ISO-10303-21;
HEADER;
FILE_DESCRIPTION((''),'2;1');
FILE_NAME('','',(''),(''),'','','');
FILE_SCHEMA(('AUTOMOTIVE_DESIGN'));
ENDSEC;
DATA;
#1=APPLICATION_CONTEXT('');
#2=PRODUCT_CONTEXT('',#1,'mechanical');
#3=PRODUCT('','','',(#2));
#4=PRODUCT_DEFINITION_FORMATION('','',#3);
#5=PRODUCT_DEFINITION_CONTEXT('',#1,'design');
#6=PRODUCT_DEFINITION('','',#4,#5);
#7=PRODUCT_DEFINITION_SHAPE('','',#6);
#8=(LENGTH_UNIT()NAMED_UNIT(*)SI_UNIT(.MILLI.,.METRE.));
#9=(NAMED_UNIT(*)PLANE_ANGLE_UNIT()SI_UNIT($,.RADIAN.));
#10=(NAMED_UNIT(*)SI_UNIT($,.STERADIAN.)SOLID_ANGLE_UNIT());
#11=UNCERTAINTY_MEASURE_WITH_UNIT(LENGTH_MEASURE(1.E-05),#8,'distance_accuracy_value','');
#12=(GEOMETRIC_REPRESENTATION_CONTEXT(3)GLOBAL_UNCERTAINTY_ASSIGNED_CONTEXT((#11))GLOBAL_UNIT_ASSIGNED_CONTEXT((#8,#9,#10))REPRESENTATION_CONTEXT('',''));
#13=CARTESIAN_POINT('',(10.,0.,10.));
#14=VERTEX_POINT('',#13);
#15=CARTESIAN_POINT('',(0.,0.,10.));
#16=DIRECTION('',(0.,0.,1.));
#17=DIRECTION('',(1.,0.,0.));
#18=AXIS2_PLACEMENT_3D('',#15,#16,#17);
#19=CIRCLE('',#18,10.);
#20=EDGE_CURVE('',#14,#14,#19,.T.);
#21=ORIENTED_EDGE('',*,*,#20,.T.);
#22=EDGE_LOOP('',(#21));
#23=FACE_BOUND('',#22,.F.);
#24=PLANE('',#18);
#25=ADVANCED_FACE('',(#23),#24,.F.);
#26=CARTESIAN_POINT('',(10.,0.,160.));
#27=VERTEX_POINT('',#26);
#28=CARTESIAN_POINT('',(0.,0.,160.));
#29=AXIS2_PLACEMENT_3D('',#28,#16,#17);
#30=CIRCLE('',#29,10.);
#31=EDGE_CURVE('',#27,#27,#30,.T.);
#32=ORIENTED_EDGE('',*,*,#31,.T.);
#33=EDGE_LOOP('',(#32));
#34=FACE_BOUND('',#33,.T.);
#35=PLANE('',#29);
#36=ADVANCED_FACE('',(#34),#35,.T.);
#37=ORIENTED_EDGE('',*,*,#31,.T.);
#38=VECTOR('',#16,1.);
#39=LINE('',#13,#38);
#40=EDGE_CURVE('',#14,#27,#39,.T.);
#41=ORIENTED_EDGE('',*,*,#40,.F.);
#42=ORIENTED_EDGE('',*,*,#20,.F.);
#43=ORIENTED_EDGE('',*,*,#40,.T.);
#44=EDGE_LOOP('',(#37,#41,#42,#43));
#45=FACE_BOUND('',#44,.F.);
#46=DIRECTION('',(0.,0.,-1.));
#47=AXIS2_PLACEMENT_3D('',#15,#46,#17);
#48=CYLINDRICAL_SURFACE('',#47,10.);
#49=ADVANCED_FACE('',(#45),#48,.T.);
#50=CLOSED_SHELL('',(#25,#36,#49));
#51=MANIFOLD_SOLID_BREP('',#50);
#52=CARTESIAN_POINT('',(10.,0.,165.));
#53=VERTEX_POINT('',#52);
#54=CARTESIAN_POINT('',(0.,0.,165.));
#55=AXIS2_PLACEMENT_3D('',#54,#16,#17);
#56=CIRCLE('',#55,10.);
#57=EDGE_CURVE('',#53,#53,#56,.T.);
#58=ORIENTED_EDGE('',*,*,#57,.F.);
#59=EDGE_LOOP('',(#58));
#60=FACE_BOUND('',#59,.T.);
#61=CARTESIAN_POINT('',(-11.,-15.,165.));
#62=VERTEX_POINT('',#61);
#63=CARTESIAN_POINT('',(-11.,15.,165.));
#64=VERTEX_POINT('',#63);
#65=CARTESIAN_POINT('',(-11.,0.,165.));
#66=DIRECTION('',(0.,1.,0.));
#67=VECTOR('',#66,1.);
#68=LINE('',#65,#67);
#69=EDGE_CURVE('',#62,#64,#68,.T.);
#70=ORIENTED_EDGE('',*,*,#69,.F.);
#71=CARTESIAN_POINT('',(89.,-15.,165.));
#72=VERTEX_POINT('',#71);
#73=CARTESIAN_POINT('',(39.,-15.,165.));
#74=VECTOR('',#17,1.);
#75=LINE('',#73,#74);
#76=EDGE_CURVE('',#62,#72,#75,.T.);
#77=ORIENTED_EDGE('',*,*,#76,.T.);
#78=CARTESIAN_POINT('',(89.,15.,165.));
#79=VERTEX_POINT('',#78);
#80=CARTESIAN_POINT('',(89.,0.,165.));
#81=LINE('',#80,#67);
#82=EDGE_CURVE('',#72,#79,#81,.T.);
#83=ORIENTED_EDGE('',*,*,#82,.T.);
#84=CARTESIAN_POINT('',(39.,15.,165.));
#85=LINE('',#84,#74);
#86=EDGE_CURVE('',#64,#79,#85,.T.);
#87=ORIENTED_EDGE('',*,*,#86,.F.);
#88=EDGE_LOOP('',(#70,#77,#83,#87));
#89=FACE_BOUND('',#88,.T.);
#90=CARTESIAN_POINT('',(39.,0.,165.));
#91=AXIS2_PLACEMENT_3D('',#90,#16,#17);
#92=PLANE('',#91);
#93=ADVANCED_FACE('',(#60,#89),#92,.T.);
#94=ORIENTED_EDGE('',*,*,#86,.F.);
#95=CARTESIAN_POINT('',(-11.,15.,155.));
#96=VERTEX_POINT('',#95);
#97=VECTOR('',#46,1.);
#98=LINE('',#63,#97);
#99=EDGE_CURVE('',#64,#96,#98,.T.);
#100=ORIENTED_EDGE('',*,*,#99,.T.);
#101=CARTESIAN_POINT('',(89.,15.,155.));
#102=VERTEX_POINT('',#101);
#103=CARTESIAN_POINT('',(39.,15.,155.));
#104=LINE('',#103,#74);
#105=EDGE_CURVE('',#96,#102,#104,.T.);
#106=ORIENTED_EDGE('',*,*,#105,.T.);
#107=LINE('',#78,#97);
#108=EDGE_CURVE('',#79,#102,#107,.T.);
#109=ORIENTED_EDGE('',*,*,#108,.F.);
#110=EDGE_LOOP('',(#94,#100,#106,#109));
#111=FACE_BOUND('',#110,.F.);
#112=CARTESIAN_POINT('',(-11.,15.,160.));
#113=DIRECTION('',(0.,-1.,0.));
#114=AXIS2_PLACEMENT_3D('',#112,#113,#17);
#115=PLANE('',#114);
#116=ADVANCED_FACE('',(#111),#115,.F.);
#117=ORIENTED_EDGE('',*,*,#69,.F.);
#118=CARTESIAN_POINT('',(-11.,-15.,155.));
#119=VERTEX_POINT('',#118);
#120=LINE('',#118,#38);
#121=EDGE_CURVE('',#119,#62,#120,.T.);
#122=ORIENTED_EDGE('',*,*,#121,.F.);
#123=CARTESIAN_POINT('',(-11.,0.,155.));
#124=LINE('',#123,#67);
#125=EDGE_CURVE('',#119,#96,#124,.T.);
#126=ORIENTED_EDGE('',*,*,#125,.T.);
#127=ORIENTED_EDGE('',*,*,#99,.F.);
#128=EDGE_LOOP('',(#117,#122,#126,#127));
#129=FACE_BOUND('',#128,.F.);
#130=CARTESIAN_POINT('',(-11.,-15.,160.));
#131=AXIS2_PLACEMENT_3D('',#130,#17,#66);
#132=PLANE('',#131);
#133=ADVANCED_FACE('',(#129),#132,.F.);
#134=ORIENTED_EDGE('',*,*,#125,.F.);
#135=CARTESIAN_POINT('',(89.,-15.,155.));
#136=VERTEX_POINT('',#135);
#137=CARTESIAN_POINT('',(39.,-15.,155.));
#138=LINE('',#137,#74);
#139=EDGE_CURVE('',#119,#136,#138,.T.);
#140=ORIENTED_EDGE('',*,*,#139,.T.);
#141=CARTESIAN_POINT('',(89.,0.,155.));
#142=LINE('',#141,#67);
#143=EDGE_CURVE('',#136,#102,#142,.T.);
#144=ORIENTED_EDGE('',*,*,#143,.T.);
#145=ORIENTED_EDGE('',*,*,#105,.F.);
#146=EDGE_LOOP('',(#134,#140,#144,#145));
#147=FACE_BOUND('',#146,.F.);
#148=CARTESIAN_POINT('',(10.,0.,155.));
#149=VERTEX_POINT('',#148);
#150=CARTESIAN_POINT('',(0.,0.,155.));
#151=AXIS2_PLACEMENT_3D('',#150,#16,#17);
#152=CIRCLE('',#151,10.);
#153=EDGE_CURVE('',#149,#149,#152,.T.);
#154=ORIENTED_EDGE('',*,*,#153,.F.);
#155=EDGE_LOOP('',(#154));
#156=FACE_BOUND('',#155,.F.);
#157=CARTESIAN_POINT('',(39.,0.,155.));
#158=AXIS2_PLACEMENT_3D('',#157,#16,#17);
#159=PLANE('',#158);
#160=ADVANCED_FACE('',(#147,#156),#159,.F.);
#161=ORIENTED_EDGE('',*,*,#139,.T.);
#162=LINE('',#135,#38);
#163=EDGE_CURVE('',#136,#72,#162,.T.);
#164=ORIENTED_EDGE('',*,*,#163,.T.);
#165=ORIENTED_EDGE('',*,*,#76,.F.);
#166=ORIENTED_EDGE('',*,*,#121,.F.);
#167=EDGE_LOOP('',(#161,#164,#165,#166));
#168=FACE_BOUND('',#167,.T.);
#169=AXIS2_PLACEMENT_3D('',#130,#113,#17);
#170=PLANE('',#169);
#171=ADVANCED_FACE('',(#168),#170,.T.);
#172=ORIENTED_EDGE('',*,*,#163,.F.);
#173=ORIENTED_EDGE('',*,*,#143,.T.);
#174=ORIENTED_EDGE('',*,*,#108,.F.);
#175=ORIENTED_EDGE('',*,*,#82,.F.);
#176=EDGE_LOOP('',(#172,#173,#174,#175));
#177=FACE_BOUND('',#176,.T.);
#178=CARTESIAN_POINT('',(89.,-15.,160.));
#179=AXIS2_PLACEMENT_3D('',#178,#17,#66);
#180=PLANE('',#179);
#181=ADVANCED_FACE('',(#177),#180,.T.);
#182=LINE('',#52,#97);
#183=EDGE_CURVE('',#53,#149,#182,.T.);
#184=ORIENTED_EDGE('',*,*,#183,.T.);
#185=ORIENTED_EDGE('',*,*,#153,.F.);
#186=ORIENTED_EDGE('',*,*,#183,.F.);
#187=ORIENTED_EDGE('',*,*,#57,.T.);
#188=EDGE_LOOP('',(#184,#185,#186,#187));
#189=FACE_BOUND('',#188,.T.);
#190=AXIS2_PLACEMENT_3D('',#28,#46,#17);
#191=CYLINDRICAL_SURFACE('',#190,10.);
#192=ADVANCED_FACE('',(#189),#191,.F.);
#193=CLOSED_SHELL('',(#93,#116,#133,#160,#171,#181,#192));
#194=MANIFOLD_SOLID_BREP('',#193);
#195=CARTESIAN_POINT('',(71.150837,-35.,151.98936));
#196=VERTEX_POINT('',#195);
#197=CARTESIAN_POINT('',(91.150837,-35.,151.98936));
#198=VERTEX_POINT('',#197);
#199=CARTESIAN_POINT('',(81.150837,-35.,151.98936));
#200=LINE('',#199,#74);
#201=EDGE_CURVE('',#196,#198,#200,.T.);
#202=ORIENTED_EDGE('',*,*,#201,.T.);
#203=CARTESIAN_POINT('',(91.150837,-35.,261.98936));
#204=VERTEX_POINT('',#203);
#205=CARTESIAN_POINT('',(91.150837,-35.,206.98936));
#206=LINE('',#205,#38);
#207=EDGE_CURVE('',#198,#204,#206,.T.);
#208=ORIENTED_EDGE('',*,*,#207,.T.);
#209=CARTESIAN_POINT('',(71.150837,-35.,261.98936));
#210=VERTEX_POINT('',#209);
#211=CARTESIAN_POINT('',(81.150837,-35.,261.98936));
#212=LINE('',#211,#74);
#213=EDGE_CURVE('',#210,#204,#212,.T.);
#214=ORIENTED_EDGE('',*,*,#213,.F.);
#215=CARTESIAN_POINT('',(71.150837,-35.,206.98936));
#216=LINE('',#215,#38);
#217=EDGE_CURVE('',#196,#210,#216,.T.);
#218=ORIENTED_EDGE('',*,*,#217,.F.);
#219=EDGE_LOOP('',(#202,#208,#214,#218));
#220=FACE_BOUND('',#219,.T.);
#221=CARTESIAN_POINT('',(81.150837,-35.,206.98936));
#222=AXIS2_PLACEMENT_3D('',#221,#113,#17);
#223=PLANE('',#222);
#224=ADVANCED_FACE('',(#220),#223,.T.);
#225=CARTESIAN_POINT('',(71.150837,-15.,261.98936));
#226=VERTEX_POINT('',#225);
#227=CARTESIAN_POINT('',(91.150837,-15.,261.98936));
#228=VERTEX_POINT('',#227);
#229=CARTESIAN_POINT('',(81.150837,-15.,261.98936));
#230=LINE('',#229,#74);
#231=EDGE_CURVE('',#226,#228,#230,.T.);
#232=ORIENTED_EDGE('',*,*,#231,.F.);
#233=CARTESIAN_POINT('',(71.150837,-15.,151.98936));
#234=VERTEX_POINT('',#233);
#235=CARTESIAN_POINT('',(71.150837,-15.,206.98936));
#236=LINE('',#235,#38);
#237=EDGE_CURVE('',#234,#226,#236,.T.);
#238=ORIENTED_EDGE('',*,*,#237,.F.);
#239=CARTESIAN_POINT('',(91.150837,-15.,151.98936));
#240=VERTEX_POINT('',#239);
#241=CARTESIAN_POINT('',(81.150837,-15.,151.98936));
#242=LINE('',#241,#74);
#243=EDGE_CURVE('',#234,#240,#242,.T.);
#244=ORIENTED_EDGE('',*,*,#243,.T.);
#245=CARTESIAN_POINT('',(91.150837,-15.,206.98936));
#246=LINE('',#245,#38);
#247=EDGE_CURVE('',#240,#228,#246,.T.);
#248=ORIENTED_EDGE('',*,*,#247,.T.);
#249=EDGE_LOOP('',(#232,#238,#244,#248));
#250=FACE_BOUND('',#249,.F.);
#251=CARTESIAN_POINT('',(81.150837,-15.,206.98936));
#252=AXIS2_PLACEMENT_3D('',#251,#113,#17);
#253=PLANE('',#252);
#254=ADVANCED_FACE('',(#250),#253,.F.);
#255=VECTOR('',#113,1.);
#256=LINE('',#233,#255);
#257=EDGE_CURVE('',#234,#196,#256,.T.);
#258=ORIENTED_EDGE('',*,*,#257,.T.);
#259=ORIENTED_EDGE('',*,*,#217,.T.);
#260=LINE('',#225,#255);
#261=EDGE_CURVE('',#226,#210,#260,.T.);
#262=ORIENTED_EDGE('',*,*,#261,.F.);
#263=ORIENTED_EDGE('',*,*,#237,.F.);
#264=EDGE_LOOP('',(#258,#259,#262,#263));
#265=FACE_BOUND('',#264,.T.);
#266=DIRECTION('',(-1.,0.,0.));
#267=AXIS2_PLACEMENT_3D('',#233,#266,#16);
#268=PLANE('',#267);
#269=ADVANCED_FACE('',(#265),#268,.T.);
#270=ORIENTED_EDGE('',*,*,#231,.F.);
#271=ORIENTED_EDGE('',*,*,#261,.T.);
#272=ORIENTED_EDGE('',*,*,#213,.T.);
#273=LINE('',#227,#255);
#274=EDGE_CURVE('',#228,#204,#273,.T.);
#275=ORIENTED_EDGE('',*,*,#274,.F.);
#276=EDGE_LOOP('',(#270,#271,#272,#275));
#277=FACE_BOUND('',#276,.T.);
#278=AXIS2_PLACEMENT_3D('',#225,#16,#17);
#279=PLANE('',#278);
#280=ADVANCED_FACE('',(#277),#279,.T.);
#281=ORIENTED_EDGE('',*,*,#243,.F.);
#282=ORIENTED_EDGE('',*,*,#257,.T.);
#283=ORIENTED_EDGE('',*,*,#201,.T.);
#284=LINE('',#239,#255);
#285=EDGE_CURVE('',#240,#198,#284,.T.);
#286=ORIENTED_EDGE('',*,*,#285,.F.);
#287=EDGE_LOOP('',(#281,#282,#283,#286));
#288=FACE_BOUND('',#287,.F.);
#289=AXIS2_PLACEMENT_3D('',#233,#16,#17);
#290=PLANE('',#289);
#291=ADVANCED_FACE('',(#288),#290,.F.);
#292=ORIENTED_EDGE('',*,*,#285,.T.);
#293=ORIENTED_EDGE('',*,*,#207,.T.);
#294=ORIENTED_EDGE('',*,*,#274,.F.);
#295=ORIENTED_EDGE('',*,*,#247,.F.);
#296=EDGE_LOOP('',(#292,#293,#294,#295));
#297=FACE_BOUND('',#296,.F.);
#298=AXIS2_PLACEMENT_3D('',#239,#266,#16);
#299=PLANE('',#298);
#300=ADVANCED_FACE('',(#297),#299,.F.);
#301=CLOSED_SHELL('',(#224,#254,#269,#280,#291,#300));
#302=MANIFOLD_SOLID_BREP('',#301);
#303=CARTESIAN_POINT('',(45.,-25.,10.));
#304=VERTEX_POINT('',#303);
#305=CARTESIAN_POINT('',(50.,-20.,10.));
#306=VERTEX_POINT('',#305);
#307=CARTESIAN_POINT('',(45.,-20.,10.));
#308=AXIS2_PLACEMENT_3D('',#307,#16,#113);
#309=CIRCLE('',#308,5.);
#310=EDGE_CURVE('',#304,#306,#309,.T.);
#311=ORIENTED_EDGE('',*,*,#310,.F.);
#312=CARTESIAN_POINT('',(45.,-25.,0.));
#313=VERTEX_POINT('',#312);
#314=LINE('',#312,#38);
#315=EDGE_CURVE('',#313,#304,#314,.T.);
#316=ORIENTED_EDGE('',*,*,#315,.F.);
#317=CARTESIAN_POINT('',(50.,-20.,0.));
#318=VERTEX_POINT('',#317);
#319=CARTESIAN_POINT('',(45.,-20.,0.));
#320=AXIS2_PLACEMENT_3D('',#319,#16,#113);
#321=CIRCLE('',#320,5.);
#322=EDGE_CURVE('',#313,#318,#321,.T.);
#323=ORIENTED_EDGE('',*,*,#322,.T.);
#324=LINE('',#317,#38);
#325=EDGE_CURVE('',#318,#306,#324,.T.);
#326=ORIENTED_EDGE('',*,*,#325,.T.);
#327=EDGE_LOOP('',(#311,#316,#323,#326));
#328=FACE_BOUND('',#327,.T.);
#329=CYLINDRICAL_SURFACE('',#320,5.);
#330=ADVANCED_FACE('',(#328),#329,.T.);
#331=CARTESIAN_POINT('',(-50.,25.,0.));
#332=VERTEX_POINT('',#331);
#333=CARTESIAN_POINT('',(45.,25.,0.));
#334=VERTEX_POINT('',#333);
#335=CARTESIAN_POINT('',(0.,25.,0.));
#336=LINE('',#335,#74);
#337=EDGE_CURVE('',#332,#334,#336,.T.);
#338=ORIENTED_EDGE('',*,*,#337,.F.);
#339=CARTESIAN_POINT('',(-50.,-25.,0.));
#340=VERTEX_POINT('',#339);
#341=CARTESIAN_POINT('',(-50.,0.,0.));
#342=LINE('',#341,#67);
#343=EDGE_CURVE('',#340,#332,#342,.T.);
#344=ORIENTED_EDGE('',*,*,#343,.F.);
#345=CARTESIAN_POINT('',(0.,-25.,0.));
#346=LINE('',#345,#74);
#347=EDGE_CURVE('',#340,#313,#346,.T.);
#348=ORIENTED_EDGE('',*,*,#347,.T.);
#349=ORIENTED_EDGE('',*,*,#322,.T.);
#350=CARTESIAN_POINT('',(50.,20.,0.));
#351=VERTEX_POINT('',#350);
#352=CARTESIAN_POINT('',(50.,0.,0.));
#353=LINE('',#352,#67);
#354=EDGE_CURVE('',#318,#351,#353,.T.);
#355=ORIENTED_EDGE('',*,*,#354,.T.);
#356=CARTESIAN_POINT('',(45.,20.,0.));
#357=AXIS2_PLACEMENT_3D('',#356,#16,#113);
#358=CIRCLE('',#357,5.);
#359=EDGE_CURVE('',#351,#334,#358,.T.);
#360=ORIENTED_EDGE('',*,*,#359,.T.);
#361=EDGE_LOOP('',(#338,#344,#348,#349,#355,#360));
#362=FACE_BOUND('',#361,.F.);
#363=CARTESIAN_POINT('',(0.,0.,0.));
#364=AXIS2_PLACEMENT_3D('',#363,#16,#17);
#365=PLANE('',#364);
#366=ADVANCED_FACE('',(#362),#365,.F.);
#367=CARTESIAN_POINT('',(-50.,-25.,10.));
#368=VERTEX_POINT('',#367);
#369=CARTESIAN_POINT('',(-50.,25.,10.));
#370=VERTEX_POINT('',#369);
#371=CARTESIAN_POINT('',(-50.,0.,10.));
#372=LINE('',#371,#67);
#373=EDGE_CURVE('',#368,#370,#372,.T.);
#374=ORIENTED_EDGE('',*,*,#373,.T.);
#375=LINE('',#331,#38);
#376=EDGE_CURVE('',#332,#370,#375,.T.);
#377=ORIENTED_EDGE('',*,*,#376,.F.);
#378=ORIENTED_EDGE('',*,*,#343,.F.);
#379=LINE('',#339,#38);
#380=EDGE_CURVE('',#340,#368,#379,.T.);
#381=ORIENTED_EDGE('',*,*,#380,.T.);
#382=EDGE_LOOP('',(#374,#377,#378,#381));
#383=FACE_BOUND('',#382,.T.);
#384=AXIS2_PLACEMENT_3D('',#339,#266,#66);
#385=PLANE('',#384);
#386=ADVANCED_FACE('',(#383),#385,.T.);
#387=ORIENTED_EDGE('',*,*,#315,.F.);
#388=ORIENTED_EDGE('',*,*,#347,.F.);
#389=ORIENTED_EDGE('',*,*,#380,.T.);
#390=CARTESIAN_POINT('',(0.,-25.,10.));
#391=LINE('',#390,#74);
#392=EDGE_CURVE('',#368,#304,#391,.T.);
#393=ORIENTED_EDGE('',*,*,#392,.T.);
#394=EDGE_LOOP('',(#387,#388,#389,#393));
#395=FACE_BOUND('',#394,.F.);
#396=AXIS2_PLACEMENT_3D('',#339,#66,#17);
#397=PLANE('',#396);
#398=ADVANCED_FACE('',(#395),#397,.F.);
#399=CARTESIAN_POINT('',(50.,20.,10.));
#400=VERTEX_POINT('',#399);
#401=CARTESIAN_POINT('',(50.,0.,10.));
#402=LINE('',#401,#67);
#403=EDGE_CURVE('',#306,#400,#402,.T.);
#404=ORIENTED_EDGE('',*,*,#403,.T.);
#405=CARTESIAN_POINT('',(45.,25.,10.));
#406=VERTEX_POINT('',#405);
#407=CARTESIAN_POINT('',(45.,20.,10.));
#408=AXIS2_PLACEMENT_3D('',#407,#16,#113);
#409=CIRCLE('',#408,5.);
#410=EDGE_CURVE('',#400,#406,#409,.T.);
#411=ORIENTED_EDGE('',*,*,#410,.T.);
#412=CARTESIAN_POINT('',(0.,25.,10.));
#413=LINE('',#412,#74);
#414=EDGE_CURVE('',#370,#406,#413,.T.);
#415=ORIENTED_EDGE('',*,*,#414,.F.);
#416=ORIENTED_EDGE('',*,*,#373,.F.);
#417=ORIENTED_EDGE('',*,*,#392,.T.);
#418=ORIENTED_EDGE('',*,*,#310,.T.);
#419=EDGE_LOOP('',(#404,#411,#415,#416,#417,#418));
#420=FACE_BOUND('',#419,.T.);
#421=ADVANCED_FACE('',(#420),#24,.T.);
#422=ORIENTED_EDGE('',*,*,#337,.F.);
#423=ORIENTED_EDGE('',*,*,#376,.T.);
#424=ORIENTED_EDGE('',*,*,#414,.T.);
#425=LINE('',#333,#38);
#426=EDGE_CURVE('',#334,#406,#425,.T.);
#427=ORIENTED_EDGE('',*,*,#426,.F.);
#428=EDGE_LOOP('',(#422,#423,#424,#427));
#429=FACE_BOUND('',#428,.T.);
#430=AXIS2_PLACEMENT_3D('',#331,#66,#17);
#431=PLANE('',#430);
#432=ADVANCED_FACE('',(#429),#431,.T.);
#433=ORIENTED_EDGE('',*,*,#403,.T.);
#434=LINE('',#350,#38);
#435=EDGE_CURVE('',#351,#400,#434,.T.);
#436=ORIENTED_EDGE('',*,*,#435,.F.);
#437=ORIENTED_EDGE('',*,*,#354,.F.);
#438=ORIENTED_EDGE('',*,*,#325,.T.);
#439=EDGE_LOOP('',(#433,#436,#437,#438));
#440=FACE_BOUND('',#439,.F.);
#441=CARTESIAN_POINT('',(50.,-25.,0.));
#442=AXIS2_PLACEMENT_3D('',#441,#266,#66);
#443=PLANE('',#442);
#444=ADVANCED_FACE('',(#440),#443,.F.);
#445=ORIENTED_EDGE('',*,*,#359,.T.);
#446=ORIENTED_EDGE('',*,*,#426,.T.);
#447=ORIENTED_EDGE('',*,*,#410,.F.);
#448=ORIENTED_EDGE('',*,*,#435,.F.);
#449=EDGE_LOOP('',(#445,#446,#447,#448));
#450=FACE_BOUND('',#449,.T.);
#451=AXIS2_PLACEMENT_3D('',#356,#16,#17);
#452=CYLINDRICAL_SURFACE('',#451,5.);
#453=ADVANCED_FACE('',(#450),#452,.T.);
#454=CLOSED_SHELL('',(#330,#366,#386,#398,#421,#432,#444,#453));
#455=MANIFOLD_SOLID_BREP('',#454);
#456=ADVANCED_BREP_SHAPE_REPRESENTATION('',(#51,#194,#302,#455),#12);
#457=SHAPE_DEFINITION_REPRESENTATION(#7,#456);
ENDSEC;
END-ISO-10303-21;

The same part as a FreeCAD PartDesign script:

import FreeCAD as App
import Part
import Sketcher
Q = App.Units.Quantity


def edges_at(feature, points):
    """Names of the edges that pass closest to the given points."""
    edges = feature.Shape.Edges
    near = lambda p: min(range(len(edges)), key=lambda i: edges[i].distToShape(Part.Vertex(*p))[0])
    return sorted({f"Edge{near(p) + 1}" for p in points})

doc = App.newDocument("Part")
body = doc.addObject("PartDesign::Body", "Body")

# Sketch on XY plane
sketch1 = body.newObject("Sketcher::SketchObject", "Sketch")
sketch1.AttachmentSupport = (doc.getObject("XY_Plane"), [""])
sketch1.MapMode = "FlatFace"
sketch1.addGeometry([
    Part.LineSegment(App.Vector(-50, 25, 0), App.Vector(-50, -25, 0)),
    Part.LineSegment(App.Vector(-50, -25, 0), App.Vector(50, -25, 0)),
    Part.LineSegment(App.Vector(50, -25, 0), App.Vector(50, 25, 0)),
    Part.LineSegment(App.Vector(50, 25, 0), App.Vector(-50, 25, 0)),
], False)
sketch1.addConstraint([
    Sketcher.Constraint("Coincident", 0, 2, 1, 1),
    Sketcher.Constraint("Coincident", 1, 2, 2, 1),
    Sketcher.Constraint("Coincident", 2, 2, 3, 1),
    Sketcher.Constraint("Coincident", 3, 2, 0, 1),
    Sketcher.Constraint("Vertical", 0),
    Sketcher.Constraint("Horizontal", 1),
    Sketcher.Constraint("Vertical", 2),
    Sketcher.Constraint("Horizontal", 3),
    Sketcher.Constraint("Symmetric", 0, 2, 2, 2, -1, 1),
    Sketcher.Constraint("DistanceX", 1, 1, 1, 2, Q("100 mm")),
    Sketcher.Constraint("DistanceY", 0, 2, 0, 1, Q("50 mm")),
])
pad1 = body.newObject("PartDesign::Pad", "Pad")
pad1.Profile = sketch1
pad1.Length = 10
doc.recompute()

fillet = body.newObject("PartDesign::Fillet", "Fillet")
fillet.Base = (pad1, edges_at(pad1, [(50, -25, 5)]))
fillet.Radius = 5
doc.recompute()

fillet2 = body.newObject("PartDesign::Fillet", "Fillet001")
fillet2.Base = (fillet, edges_at(fillet, [(50, 25, 5)]))
fillet2.Radius = 5
body2 = doc.addObject("PartDesign::Body", "Body001")

# Sketch on XY plane
sketch2 = body2.newObject("Sketcher::SketchObject", "Sketch001")
sketch2.AttachmentSupport = (doc.getObject("XY_Plane001"), [""])
sketch2.MapMode = "FlatFace"
sketch2.AttachmentOffset = App.Placement(App.Vector(0, 0, 10), App.Rotation())
sketch2.addGeometry(Part.Circle(App.Vector(0, 0, 0), App.Vector(0, 0, 1), 10), False)
sketch2.addConstraint([
    Sketcher.Constraint("Coincident", 0, 3, -1, 1),
    Sketcher.Constraint("Diameter", 0, Q("20 mm")),
])
pad2 = body2.newObject("PartDesign::Pad", "Pad001")
pad2.Profile = sketch2
pad2.Length = 150
body3 = doc.addObject("PartDesign::Body", "Body002")

# Sketch on XY plane
sketch3 = body3.newObject("Sketcher::SketchObject", "Sketch002")
sketch3.AttachmentSupport = (doc.getObject("XY_Plane002"), [""])
sketch3.MapMode = "FlatFace"
sketch3.AttachmentOffset = App.Placement(App.Vector(0, 0, 160), App.Rotation())
sketch3.addGeometry([
    Part.LineSegment(App.Vector(-11, 15, 0), App.Vector(-11, -15, 0)),  # 0
    Part.LineSegment(App.Vector(-11, -15, 0), App.Vector(89, -15, 0)),  # 1
    Part.LineSegment(App.Vector(89, -15, 0), App.Vector(89, 15, 0)),  # 2
    Part.LineSegment(App.Vector(89, 15, 0), App.Vector(-11, 15, 0)),  # 3
    Part.Circle(App.Vector(0, 0, 0), App.Vector(0, 0, 1), 10),  # 4
], False)
sketch3.addConstraint([
    Sketcher.Constraint("Coincident", 0, 2, 1, 1),
    Sketcher.Constraint("Coincident", 1, 2, 2, 1),
    Sketcher.Constraint("Coincident", 2, 2, 3, 1),
    Sketcher.Constraint("Coincident", 3, 2, 0, 1),
    Sketcher.Constraint("Vertical", 0),
    Sketcher.Constraint("Horizontal", 1),
    Sketcher.Constraint("Vertical", 2),
    Sketcher.Constraint("Horizontal", 3),
    Sketcher.Constraint("Coincident", 4, 3, -1, 1),
    Sketcher.Constraint("Diameter", 4, Q("20 mm")),
    Sketcher.Constraint("DistanceX", 1, 1, 1, 2, Q("100 mm")),
    Sketcher.Constraint("DistanceY", 0, 2, 0, 1, Q("30 mm")),
    Sketcher.Constraint("DistanceX", 0, 2, -1, 1, Q("11 mm")),
    Sketcher.Constraint("DistanceY", 0, 2, -1, 1, Q("15 mm")),
])
pad3 = body3.newObject("PartDesign::Pad", "Pad002")
pad3.Profile = sketch3
pad3.Length = 10
pad3.Midplane = True
body4 = doc.addObject("PartDesign::Body", "Body003")

# Sketch on XZ plane
sketch4 = body4.newObject("Sketcher::SketchObject", "Sketch003")
sketch4.AttachmentSupport = (doc.getObject("XZ_Plane003"), [""])
sketch4.MapMode = "FlatFace"
sketch4.AttachmentOffset = App.Placement(App.Vector(0, 0, 15), App.Rotation())
sketch4.addGeometry([
    Part.LineSegment(App.Vector(71, 262, 0), App.Vector(71, 152, 0)),
    Part.LineSegment(App.Vector(71, 152, 0), App.Vector(91, 152, 0)),
    Part.LineSegment(App.Vector(91, 152, 0), App.Vector(91, 262, 0)),
    Part.LineSegment(App.Vector(91, 262, 0), App.Vector(71, 262, 0)),
], False)
sketch4.addConstraint([
    Sketcher.Constraint("Coincident", 0, 2, 1, 1),
    Sketcher.Constraint("Coincident", 1, 2, 2, 1),
    Sketcher.Constraint("Coincident", 2, 2, 3, 1),
    Sketcher.Constraint("Coincident", 3, 2, 0, 1),
    Sketcher.Constraint("Vertical", 0),
    Sketcher.Constraint("Horizontal", 1),
    Sketcher.Constraint("Vertical", 2),
    Sketcher.Constraint("Horizontal", 3),
    Sketcher.Constraint("DistanceX", 1, 1, 1, 2, Q("20 mm")),
    Sketcher.Constraint("DistanceY", 0, 2, 0, 1, Q("110 mm")),
    Sketcher.Constraint("DistanceY", -1, 1, 0, 2, Q("151.98936 mm")),
    Sketcher.Constraint("DistanceX", -1, 1, 0, 2, Q("71.150837 mm")),
])
pad4 = body4.newObject("PartDesign::Pad", "Pad003")
pad4.Profile = sketch4
pad4.Length = 20

doc.recompute()
